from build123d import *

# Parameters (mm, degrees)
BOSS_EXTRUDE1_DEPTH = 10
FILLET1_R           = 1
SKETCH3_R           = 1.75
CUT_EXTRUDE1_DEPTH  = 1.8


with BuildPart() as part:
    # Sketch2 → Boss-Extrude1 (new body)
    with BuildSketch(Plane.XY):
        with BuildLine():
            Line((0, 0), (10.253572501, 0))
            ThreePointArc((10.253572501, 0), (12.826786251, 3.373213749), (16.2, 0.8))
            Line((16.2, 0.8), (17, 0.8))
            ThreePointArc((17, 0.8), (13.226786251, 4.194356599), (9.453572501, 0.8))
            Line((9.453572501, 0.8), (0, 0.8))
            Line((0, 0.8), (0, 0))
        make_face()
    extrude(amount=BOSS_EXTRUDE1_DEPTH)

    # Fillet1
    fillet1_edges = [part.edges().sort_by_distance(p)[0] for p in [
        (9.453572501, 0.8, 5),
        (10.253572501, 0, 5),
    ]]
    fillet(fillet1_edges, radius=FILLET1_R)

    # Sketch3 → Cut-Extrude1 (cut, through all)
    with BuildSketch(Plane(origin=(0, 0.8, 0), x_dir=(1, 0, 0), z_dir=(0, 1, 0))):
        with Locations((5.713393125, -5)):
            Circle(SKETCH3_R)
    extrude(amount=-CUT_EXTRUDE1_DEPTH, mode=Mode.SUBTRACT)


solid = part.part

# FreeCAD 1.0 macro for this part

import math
import FreeCAD as App
import Part
import Sketcher
from FreeCAD import Vector


def edges_at(feature, points):
    """Names of the edges that pass closest to the given points."""
    edges = feature.Shape.Edges
    near = lambda p: min(range(len(edges)), key=lambda i: edges[i].distToShape(Part.Vertex(*p))[0])
    return sorted({f"Edge{near(p) + 1}" for p in points})

doc = App.newDocument("Part")
body = doc.addObject("PartDesign::Body", "Body")

# Sketch on XY plane
sketch1 = doc.addObject("Sketcher::SketchObject", "Sketch")
body.addObject(sketch1)
sketch1.AttachmentSupport = (doc.XY_Plane, [""])
sketch1.MapMode = "FlatFace"
sketch1.addGeometry([
    Part.LineSegment(Vector(0, 0, 0), Vector(10.3, 0, 0)),  # 0
    Part.ArcOfCircle(Part.Circle(Vector(13.2, 0.4, 0), Vector(0, 0, 1), 3), math.radians(8), math.radians(188)),  # 1
    Part.LineSegment(Vector(16.2, 0.8, 0), Vector(17, 0.8, 0)),  # 2
    Part.ArcOfCircle(Part.Circle(Vector(13.2, 0.4, 0), Vector(0, 0, 1), 3.8), math.radians(6), math.radians(174)),  # 3
    Part.LineSegment(Vector(9.5, 0.8, 0), Vector(0, 0.8, 0)),  # 4
    Part.LineSegment(Vector(0, 0.8, 0), Vector(0, 0, 0)),  # 5
], False)
sketch1.addConstraint([
    Sketcher.Constraint("Coincident", 0, 2, 1, 2),
    Sketcher.Constraint("Coincident", 1, 1, 2, 1),
    Sketcher.Constraint("Coincident", 2, 2, 3, 1),
    Sketcher.Constraint("Coincident", 3, 2, 4, 1),
    Sketcher.Constraint("Coincident", 4, 2, 5, 1),
    Sketcher.Constraint("Coincident", 5, 2, 0, 1),
    Sketcher.Constraint("Horizontal", 0),
    Sketcher.Constraint("Horizontal", 2),
    Sketcher.Constraint("Horizontal", 4),
    Sketcher.Constraint("Vertical", 5),
    Sketcher.Constraint("Coincident", 5, 2, -1, 1),
    Sketcher.Constraint("Coincident", 3, 3, 1, 3),
    Sketcher.Constraint("Horizontal", 2, 2, 3, 2),
    Sketcher.Constraint("Equal", 2, 5),
    Sketcher.Constraint("Radius", 1, 3.0),
    Sketcher.Constraint("DistanceX", 2, 1, 2, 2, 0.8),
    Sketcher.Constraint("DistanceX", -1, 1, 2, 2, 17.0),
    Sketcher.Constraint("DistanceY", -1, 1, 1, 3, 0.4),
])
pad1 = doc.addObject("PartDesign::Pad", "Pad")
body.addObject(pad1)
pad1.Profile = sketch1
pad1.Length = 10
doc.recompute()

fillet = doc.addObject("PartDesign::Fillet", "Fillet")
body.addObject(fillet)
fillet.Base = (pad1, edges_at(pad1, [(9.454, 0.8, 5), (10.254, 0, 5)]))
fillet.Radius = 1

# Sketch on XZ plane
sketch2 = doc.addObject("Sketcher::SketchObject", "Sketch001")
body.addObject(sketch2)
sketch2.AttachmentSupport = (doc.XZ_Plane, [""])
sketch2.MapMode = "FlatFace"
sketch2.AttachmentOffset = App.Placement(Vector(0, 0, -0.8), App.Rotation())
sketch2.addGeometry(Part.Circle(Vector(5.7, 5, 0), Vector(0, 0, 1), 1.8), False)
sketch2.addConstraint([
    Sketcher.Constraint("Diameter", 0, 3.5),
    Sketcher.Constraint("DistanceY", -1, 1, 0, 3, 5.0),
    Sketcher.Constraint("DistanceX", -1, 1, 0, 3, 5.713393),
])
pocket1 = doc.addObject("PartDesign::Pocket", "Pocket")
body.addObject(pocket1)
pocket1.Profile = sketch2
pocket1.Type = "ThroughAll"
pocket1.Reversed = True

doc.recompute()
